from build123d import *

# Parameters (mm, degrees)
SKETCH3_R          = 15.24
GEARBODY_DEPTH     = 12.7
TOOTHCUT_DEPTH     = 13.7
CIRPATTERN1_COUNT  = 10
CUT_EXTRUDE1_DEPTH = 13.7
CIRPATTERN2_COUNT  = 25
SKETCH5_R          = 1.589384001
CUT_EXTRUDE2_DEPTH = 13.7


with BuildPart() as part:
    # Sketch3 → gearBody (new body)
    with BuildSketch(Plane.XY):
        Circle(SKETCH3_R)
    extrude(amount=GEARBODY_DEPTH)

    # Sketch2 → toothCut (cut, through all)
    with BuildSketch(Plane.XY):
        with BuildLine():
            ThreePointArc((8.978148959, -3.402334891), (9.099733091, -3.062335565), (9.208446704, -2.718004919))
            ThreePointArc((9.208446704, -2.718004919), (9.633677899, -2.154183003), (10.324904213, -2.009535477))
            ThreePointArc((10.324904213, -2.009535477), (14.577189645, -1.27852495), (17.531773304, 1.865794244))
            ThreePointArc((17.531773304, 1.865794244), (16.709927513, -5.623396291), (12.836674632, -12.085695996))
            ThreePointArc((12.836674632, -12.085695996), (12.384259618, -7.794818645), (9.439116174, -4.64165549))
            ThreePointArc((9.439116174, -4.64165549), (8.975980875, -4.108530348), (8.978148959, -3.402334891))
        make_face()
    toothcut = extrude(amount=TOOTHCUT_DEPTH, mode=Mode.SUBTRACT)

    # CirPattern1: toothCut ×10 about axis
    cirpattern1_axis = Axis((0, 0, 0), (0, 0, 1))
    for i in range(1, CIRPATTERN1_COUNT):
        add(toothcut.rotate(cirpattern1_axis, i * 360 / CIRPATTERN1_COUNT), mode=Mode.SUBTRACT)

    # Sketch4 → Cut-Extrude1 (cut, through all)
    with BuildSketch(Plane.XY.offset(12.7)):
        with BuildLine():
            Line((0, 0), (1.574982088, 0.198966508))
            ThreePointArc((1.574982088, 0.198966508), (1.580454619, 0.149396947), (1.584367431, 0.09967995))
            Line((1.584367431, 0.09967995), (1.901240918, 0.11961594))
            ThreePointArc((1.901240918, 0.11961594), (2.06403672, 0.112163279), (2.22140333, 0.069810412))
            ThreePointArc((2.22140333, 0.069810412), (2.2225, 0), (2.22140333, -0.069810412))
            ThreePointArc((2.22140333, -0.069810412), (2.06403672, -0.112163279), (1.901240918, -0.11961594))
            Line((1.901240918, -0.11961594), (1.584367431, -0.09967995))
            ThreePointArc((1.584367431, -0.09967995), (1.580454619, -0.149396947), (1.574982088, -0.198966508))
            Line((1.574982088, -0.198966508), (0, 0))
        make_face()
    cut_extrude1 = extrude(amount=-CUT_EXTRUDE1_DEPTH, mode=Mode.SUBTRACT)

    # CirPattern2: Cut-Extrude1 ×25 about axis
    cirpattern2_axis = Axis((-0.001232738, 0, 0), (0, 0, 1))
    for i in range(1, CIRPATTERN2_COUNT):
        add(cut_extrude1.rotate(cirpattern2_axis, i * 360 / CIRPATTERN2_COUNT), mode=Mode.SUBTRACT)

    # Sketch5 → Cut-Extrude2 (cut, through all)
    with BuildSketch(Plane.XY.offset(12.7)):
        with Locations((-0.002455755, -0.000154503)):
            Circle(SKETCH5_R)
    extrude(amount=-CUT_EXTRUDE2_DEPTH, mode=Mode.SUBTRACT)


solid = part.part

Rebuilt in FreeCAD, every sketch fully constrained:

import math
import FreeCAD as App
import Part
import Sketcher
Q = App.Units.Quantity

doc = App.newDocument("Part")
params = doc.addObject("Spreadsheet::Sheet", "Params")
for row, (alias, value) in enumerate([
    ("sketch1_diameter", "1.2 in"),
    ("pad1_length", "0.5 in"),
    ("sketch2_radius", "0.378 in"),
    ("sketch3_radius", "0.0625 in"),
    ("pocket3_length", "13.7 mm"),
], start=1):
    params.set(f"A{row}", alias)
    params.set(f"B{row}", "=" + value)
    params.setAlias(f"B{row}", alias)

body = doc.addObject("PartDesign::Body", "Body")

sketch1 = doc.addObject("Sketcher::SketchObject", "Sketch")
body.addObject(sketch1)
sketch1.AttachmentSupport = (doc.XY_Plane, [""])
sketch1.MapMode = "FlatFace"
sketch1.addGeometry(Part.Circle(App.Vector(0, 0, 0), App.Vector(0, 0, 1), 15.24), False)
sketch1.addConstraint(Sketcher.Constraint("Coincident", 0, 3, -1, 1))
sketch1.addConstraint(Sketcher.Constraint("Diameter", 0, Q("1.2 in")))
sketch1.setExpression("Constraints[1]", "Params.sketch1_diameter")
pad1 = doc.addObject("PartDesign::Pad", "Pad")
body.addObject(pad1)
pad1.Profile = sketch1
pad1.setExpression("Length", "Params.pad1_length")

sketch2 = doc.addObject("Sketcher::SketchObject", "Sketch001")
body.addObject(sketch2)
sketch2.AttachmentSupport = (doc.XY_Plane, [""])
sketch2.MapMode = "FlatFace"
sketch2.addGeometry(Part.ArcOfCircle(Part.Circle(App.Vector(0, 0, 0), App.Vector(0, 0, 1), 9.6012), math.radians(-20.754568), math.radians(-16.44472)), False)
sketch2.addGeometry(Part.ArcOfCircle(Part.Circle(App.Vector(9.917529, -3.75832, 0), App.Vector(0, 0, 1), 1.00457), math.radians(159.245432), math.radians(241.560092)), False)
sketch2.addGeometry(Part.ArcOfCircle(Part.Circle(App.Vector(6.203539, -10.615781, 0), App.Vector(0, 0, 1), 6.794052), math.radians(-12.494927), math.radians(61.560093)), False)
sketch2.addGeometry(Part.ArcOfCircle(Part.Circle(App.Vector(0, 0, 0), App.Vector(0, 0, 1), 17.630776), math.radians(-43.274045), math.radians(6.074757)), False)
sketch2.addGeometry(Part.ArcOfCircle(Part.Circle(App.Vector(11.359538, 4.705275, 0), App.Vector(0, 0, 1), 6.794052), math.radians(-98.75938), math.radians(-24.704361)), False)
sketch2.addGeometry(Part.ArcOfCircle(Part.Circle(App.Vector(10.171923, -3.002389, 0), App.Vector(0, 0, 1), 1.00457), math.radians(81.24062), math.radians(163.55528)), False)
sketch2.addConstraint(Sketcher.Constraint("Tangent", 0, 1, 1, 1))
sketch2.addConstraint(Sketcher.Constraint("Tangent", 1, 2, 2, 2))
sketch2.addConstraint(Sketcher.Constraint("Coincident", 2, 1, 3, 1))
sketch2.addConstraint(Sketcher.Constraint("Coincident", 3, 2, 4, 2))
sketch2.addConstraint(Sketcher.Constraint("Tangent", 4, 1, 5, 1))
sketch2.addConstraint(Sketcher.Constraint("Tangent", 5, 2, 0, 2))
sketch2.addConstraint(Sketcher.Constraint("Coincident", 0, 3, -1, 1))
sketch2.addConstraint(Sketcher.Constraint("Coincident", 3, 3, -1, 1))
sketch2.addConstraint(Sketcher.Constraint("Equal", 2, 4))
sketch2.addConstraint(Sketcher.Constraint("Equal", 1, 5))
sketch2.addConstraint(Sketcher.Constraint("Radius", 0, Q("0.378 in")))
sketch2.addConstraint(Sketcher.Constraint("Radius", 1, 1.00457))
sketch2.addConstraint(Sketcher.Constraint("Radius", 2, 6.794052))
sketch2.addConstraint(Sketcher.Constraint("Radius", 3, 17.630776))
sketch2.addConstraint(Sketcher.Constraint("DistanceX", 2, 3, 4, 3, 5.155999))
sketch2.addConstraint(Sketcher.Constraint("DistanceY", 0, 1, 4, 1, 1.392799))
sketch2.addConstraint(Sketcher.Constraint("DistanceX", -1, 1, 1, 3, 9.917529))
sketch2.addConstraint(Sketcher.Constraint("DistanceX", -1, 1, 2, 3, 6.203539))
sketch2.setExpression("Constraints[10]", "Params.sketch2_radius")
pocket1 = doc.addObject("PartDesign::Pocket", "Pocket")
body.addObject(pocket1)
pocket1.Profile = sketch2
pocket1.Type = "ThroughAll"
pocket1.Reversed = True
doc.recompute()

polarpattern = doc.addObject("PartDesign::PolarPattern", "PolarPattern")
body.addObject(polarpattern)
polarpattern.Originals = [pocket1]
polarpattern.Axis = (doc.Z_Axis, [""])
polarpattern.Angle = 360
polarpattern.Occurrences = 10
body.Tip = polarpattern

sketch3 = doc.addObject("Sketcher::SketchObject", "Sketch002")
body.addObject(sketch3)
sketch3.AttachmentSupport = (doc.XY_Plane, [""])
sketch3.MapMode = "FlatFace"
sketch3.AttachmentOffset = App.Placement(App.Vector(0, 0, 0.5 * 25.4), App.Rotation())
sketch3.addGeometry(Part.LineSegment(App.Vector(1.574982, 0.198967, 0), App.Vector(0, 0, 0)), False)
sketch3.addGeometry(Part.LineSegment(App.Vector(0, 0, 0), App.Vector(1.574982, -0.198967, 0)), False)
sketch3.addGeometry(Part.ArcOfCircle(Part.Circle(App.Vector(0.000001, 0, 0), App.Vector(0, 0, 1), 1.587499), math.radians(-7.200001), math.radians(-3.599999)), False)
sketch3.addGeometry(Part.LineSegment(App.Vector(1.584367, -0.09968, 0), App.Vector(1.901241, -0.119616, 0)), False)
sketch3.addGeometry(Part.ArcOfCircle(Part.Circle(App.Vector(1.948455, 0.630827, 0), App.Vector(0, 0, 1), 0.751926), math.radians(-93.6), math.radians(-68.715503)), False)
sketch3.addGeometry(Part.ArcOfCircle(Part.Circle(App.Vector(0.000001, 0, 0), App.Vector(0, 0, 1), 2.222499), math.radians(-1.800001), math.radians(1.800001)), False)
sketch3.addGeometry(Part.ArcOfCircle(Part.Circle(App.Vector(1.948455, -0.630827, 0), App.Vector(0, 0, 1), 0.751926), math.radians(68.715503), math.radians(93.6)), False)
sketch3.addGeometry(Part.LineSegment(App.Vector(1.901241, 0.119616, 0), App.Vector(1.584367, 0.09968, 0)), False)
sketch3.addGeometry(Part.ArcOfCircle(Part.Circle(App.Vector(0.000001, 0, 0), App.Vector(0, 0, 1), 1.587499), math.radians(3.599999), math.radians(7.200001)), False)
sketch3.addConstraint(Sketcher.Constraint("Coincident", 0, 2, 1, 1))
sketch3.addConstraint(Sketcher.Constraint("Coincident", 1, 2, 2, 1))
sketch3.addConstraint(Sketcher.Constraint("Coincident", 2, 2, 3, 1))
sketch3.addConstraint(Sketcher.Constraint("Tangent", 3, 2, 4, 1))
sketch3.addConstraint(Sketcher.Constraint("Coincident", 4, 2, 5, 1))
sketch3.addConstraint(Sketcher.Constraint("Coincident", 5, 2, 6, 1))
sketch3.addConstraint(Sketcher.Constraint("Tangent", 6, 2, 7, 1))
sketch3.addConstraint(Sketcher.Constraint("Coincident", 7, 2, 8, 1))
sketch3.addConstraint(Sketcher.Constraint("Coincident", 8, 2, 0, 1))
sketch3.addConstraint(Sketcher.Constraint("Coincident", 2, 3, -1, 1))
sketch3.addConstraint(Sketcher.Constraint("Coincident", 5, 3, -1, 1))
sketch3.addConstraint(Sketcher.Constraint("Coincident", 8, 3, -1, 1))
sketch3.addConstraint(Sketcher.Constraint("Coincident", 0, 2, -1, 1))
sketch3.addConstraint(Sketcher.Constraint("Equal", 4, 6))
sketch3.addConstraint(Sketcher.Constraint("Equal", 2, 8))
sketch3.addConstraint(Sketcher.Constraint("Symmetric", 4, 3, 6, 3, -1))
sketch3.addConstraint(Sketcher.Constraint("Vertical", 3, 2, 6, 2))
sketch3.addConstraint(Sketcher.Constraint("Vertical", 1, 2, 8, 2))
sketch3.addConstraint(Sketcher.Constraint("Radius", 2, Q("0.0625 in")))
sketch3.addConstraint(Sketcher.Constraint("Angle", 0, Q("-172.8 deg")))
sketch3.addConstraint(Sketcher.Constraint("Angle", 3, Q("-3.6 deg")))
sketch3.addConstraint(Sketcher.Constraint("Radius", 5, Q("0.0875 in")))
sketch3.addConstraint(Sketcher.Constraint("Distance", 3, Q("0.0125 in")))
sketch3.addConstraint(Sketcher.Constraint("Radius", 4, 0.751926))
sketch3.addConstraint(Sketcher.Constraint("DistanceY", 2, 2, -1, 1, 0.09968))
sketch3.setExpression("Constraints[18]", "Params.sketch3_radius")
pocket2 = doc.addObject("PartDesign::Pocket", "Pocket001")
body.addObject(pocket2)
pocket2.Profile = sketch3
pocket2.Type = "ThroughAll"
doc.recompute()

datumline = doc.addObject("PartDesign::Line", "DatumLine")
body.addObject(datumline)
datumline.Placement = App.Placement(App.Vector(-0.001233, 0, 0), App.Rotation(App.Vector(0, 0, 1), App.Vector(0, 0, 1)))
polarpattern2 = doc.addObject("PartDesign::PolarPattern", "PolarPattern001")
body.addObject(polarpattern2)
polarpattern2.Originals = [pocket2]
polarpattern2.Axis = (datumline, [""])
polarpattern2.Angle = 360
polarpattern2.Occurrences = 25
body.Tip = polarpattern2

sketch4 = doc.addObject("Sketcher::SketchObject", "Sketch003")
body.addObject(sketch4)
sketch4.AttachmentSupport = (doc.XY_Plane, [""])
sketch4.MapMode = "FlatFace"
sketch4.AttachmentOffset = App.Placement(App.Vector(0, 0, 0.5 * 25.4), App.Rotation())
sketch4.addGeometry(Part.Circle(App.Vector(-0.002456, -0.000155, 0), App.Vector(0, 0, 1), 1.589384), False)
sketch4.addConstraint(Sketcher.Constraint("Diameter", 0, 3.178768))
sketch4.addConstraint(Sketcher.Constraint("DistanceX", 0, 3, -1, 1, 0.002456))
sketch4.addConstraint(Sketcher.Constraint("DistanceY", 0, 3, -1, 1, 0.000155))
pocket3 = doc.addObject("PartDesign::Pocket", "Pocket002")
body.addObject(pocket3)
pocket3.Profile = sketch4
pocket3.setExpression("Length", "Params.pocket3_length")

doc.recompute()
